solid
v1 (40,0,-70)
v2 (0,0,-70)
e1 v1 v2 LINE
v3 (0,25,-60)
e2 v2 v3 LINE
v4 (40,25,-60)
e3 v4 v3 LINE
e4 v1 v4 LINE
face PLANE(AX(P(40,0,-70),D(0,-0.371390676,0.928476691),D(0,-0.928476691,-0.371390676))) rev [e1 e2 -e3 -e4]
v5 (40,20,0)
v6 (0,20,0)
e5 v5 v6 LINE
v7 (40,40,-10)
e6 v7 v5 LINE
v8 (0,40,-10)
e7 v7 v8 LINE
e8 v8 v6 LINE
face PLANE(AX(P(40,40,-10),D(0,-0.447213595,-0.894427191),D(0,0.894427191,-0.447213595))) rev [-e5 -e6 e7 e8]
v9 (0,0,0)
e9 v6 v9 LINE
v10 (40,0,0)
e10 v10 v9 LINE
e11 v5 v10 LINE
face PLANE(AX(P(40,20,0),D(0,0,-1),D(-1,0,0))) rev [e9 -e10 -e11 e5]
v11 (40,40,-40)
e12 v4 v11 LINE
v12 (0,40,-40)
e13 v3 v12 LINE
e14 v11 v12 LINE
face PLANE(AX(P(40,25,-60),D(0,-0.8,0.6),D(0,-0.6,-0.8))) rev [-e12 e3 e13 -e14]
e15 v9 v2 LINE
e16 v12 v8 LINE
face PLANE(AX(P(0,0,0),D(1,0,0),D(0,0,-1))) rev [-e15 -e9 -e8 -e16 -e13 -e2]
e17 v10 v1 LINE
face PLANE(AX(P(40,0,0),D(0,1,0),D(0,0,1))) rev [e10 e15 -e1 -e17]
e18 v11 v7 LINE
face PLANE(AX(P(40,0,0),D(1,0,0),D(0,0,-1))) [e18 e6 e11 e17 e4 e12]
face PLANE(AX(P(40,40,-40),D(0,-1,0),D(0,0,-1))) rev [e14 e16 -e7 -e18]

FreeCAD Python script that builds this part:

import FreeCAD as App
import Part
import Sketcher
Q = App.Units.Quantity

doc = App.newDocument("Part")
body = doc.addObject("PartDesign::Body", "Body")

sketch1 = body.newObject("Sketcher::SketchObject", "Sketch")
sketch1.AttachmentSupport = (doc.getObject("YZ_Plane"), [""])
sketch1.MapMode = "FlatFace"
sketch1.addGeometry([
    Part.LineSegment(App.Vector(0, 0, 0), App.Vector(0, -70, 0)),
    Part.LineSegment(App.Vector(0, -70, 0), App.Vector(25, -60, 0)),
    Part.LineSegment(App.Vector(25, -60, 0), App.Vector(40, -40, 0)),
    Part.LineSegment(App.Vector(40, -40, 0), App.Vector(40, -10, 0)),
    Part.LineSegment(App.Vector(40, -10, 0), App.Vector(20, 0, 0)),
    Part.LineSegment(App.Vector(20, 0, 0), App.Vector(0, 0, 0)),
], False)
sketch1.addConstraint([
    Sketcher.Constraint("Coincident", 0, 2, 1, 1),
    Sketcher.Constraint("Coincident", 1, 2, 2, 1),
    Sketcher.Constraint("Coincident", 2, 2, 3, 1),
    Sketcher.Constraint("Coincident", 3, 2, 4, 1),
    Sketcher.Constraint("Coincident", 4, 2, 5, 1),
    Sketcher.Constraint("Coincident", 5, 2, 0, 1),
    Sketcher.Constraint("Vertical", 0),
    Sketcher.Constraint("Vertical", 3),
    Sketcher.Constraint("Horizontal", 5),
    Sketcher.Constraint("Coincident", 5, 2, -1, 1),
    Sketcher.Constraint("DistanceX", 5, 2, 5, 1, Q("20 mm")),
    Sketcher.Constraint("DistanceY", 0, 2, 0, 1, Q("70 mm")),
    Sketcher.Constraint("DistanceY", 3, 1, 3, 2, Q("30 mm")),
    Sketcher.Constraint("Distance", 2, Q("25 mm")),
    Sketcher.Constraint("DistanceX", -1, 1, 1, 2, Q("25 mm")),
    Sketcher.Constraint("DistanceY", 1, 2, -1, 1, Q("60 mm")),
    Sketcher.Constraint("DistanceX", -1, 1, 2, 2, Q("40 mm")),
])
pad1 = body.newObject("PartDesign::Pad", "Pad")
pad1.Profile = sketch1
pad1.Length = 40

doc.recompute()
